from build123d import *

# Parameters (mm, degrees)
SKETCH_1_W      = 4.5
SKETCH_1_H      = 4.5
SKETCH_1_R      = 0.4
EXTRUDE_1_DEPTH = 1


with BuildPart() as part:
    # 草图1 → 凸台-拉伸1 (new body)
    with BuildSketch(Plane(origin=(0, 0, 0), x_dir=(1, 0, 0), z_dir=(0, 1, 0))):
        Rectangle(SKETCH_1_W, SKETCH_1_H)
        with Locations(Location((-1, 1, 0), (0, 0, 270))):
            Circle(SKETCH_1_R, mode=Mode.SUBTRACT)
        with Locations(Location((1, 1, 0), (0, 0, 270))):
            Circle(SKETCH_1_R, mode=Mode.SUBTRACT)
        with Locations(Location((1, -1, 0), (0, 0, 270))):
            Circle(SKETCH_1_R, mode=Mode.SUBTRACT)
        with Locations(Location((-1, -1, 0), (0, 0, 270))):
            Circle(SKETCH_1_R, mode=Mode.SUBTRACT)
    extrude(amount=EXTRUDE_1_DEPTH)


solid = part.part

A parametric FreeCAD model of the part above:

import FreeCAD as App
import Part
import Sketcher


def add_polygon(sketch, points):
    """Adds a closed chain of lines whose ends are joined by coincident constraints."""
    first, n = sketch.GeometryCount, len(points)
    for a, b in zip(points, points[1:] + points[:1]):
        sketch.addGeometry(Part.LineSegment(App.Vector(*a, 0), App.Vector(*b, 0)), False)
    for i in range(n):
        sketch.addConstraint(Sketcher.Constraint("Coincident", first + i, 2, first + (i + 1) % n, 1))

doc = App.newDocument("Part")
body = doc.addObject("PartDesign::Body", "Body")

sketch1 = body.newObject("Sketcher::SketchObject", "Sketch")
sketch1.AttachmentSupport = (doc.getObject("XZ_Plane"), [""])
sketch1.MapMode = "FlatFace"
add_polygon(sketch1, [(-2.25, -2.25), (-2.25, 2.25), (2.25, 2.25), (2.25, -2.25)])
sketch1.addGeometry(Part.Circle(App.Vector(-1, 1, 0), App.Vector(0, 0, 1), 0.4), False)
sketch1.addGeometry(Part.Circle(App.Vector(1, 1, 0), App.Vector(0, 0, 1), 0.4), False)
sketch1.addGeometry(Part.Circle(App.Vector(-1, -1, 0), App.Vector(0, 0, 1), 0.4), False)
sketch1.addGeometry(Part.Circle(App.Vector(1, -1, 0), App.Vector(0, 0, 1), 0.4), False)
sketch1.addConstraint(Sketcher.Constraint("Vertical", 0))
sketch1.addConstraint(Sketcher.Constraint("Horizontal", 1))
sketch1.addConstraint(Sketcher.Constraint("Vertical", 2))
sketch1.addConstraint(Sketcher.Constraint("Horizontal", 3))
sketch1.addConstraint(Sketcher.Constraint("Equal", 4, 5))
sketch1.addConstraint(Sketcher.Constraint("Equal", 5, 6))
sketch1.addConstraint(Sketcher.Constraint("Equal", 6, 7))
sketch1.addConstraint(Sketcher.Constraint("Symmetric", 5, 3, 6, 3, -1, 1))
sketch1.addConstraint(Sketcher.Constraint("Symmetric", 4, 3, 7, 3, -1, 1))
sketch1.addConstraint(Sketcher.Constraint("Symmetric", 0, 2, 2, 2, -1, 1))
sketch1.addConstraint(Sketcher.Constraint("Symmetric", 4, 3, 5, 3, -2))
sketch1.addConstraint(Sketcher.Constraint("Equal", 3, 0))
sketch1.addConstraint(Sketcher.Constraint("Diameter", 4, 0.8))
sketch1.addConstraint(Sketcher.Constraint("DistanceX", 1, 1, 1, 2, 4.5))
sketch1.addConstraint(Sketcher.Constraint("DistanceX", 4, 3, -1, 1, 1.0))
sketch1.addConstraint(Sketcher.Constraint("DistanceY", -1, 1, 4, 3, 1.0))
pad1 = body.newObject("PartDesign::Pad", "Pad")
pad1.Profile = sketch1
pad1.Length = 1
pad1.Reversed = True

doc.recompute()
